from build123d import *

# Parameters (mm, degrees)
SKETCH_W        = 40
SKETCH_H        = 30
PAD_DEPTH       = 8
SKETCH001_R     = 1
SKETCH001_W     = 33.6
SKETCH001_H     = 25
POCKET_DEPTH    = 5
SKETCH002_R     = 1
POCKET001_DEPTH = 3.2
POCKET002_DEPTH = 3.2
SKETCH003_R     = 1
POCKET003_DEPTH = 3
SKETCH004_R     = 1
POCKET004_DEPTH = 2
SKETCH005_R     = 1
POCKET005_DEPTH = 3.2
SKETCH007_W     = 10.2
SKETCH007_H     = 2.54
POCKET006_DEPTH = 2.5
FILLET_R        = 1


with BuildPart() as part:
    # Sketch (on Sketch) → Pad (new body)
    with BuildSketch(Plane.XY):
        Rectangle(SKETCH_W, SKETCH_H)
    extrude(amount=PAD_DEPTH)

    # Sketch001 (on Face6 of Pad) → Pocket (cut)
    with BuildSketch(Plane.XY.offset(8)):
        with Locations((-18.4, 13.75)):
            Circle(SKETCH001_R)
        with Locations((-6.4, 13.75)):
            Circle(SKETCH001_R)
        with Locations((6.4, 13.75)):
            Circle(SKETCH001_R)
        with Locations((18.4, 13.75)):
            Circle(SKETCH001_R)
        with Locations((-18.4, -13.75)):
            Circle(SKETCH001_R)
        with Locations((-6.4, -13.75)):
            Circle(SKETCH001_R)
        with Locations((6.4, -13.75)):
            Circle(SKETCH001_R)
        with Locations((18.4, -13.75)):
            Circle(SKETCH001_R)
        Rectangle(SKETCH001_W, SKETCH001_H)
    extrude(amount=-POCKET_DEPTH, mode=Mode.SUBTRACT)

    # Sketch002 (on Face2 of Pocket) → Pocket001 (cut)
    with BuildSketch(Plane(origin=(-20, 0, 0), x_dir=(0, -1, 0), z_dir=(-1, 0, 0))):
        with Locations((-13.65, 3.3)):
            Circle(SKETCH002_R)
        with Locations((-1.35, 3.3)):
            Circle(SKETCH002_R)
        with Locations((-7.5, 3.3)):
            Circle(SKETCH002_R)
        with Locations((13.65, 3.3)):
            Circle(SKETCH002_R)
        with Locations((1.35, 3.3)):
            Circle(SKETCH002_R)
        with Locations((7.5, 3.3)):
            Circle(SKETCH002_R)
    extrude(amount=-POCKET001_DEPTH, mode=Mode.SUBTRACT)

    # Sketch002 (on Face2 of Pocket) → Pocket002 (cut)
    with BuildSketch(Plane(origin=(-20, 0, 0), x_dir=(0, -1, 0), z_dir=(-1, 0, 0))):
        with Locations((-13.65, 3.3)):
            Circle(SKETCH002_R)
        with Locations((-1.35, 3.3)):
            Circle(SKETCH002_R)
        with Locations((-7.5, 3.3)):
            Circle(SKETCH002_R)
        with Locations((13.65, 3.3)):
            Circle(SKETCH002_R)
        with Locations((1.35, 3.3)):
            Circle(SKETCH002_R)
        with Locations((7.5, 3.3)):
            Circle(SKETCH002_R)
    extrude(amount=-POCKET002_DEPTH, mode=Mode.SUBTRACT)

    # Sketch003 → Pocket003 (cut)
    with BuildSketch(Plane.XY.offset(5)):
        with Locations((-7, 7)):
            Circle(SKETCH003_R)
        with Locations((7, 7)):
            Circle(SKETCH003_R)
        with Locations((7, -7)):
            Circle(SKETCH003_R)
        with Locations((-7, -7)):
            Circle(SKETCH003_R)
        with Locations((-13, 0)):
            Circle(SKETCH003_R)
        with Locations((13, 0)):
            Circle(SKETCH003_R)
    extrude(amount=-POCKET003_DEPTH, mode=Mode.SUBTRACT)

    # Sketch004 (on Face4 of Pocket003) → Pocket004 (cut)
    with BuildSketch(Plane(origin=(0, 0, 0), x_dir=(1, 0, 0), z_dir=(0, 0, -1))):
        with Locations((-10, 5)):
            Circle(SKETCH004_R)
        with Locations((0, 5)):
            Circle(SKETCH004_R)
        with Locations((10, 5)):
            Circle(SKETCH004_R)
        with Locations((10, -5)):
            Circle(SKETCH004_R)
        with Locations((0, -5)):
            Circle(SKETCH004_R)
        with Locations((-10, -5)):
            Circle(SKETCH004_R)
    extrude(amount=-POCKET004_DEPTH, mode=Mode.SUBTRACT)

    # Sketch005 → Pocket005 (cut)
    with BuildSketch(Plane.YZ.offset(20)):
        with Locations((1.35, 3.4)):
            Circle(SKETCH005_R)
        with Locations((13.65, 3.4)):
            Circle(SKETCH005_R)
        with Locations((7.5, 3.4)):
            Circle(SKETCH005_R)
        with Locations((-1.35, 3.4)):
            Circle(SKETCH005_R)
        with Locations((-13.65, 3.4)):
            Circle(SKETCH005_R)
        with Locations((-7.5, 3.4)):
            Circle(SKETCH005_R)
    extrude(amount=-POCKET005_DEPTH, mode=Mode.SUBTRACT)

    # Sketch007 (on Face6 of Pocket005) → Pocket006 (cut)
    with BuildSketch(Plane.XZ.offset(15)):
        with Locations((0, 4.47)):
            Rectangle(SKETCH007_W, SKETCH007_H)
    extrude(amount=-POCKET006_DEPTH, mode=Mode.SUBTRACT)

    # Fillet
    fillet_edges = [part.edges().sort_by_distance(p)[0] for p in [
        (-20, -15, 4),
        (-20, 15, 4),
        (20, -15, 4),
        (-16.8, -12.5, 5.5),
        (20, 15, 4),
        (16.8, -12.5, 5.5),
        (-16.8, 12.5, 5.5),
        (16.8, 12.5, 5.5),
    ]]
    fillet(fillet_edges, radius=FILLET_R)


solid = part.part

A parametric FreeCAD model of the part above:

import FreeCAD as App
import Part
import Sketcher
from FreeCAD import Vector
Q = App.Units.Quantity


def edges_at(feature, points):
    """Names of the edges that pass closest to the given points."""
    edges = feature.Shape.Edges
    near = lambda p: min(range(len(edges)), key=lambda i: edges[i].distToShape(Part.Vertex(*p))[0])
    return sorted({f"Edge{near(p) + 1}" for p in points})

doc = App.newDocument("Part")
body = doc.addObject("PartDesign::Body", "Body")

# Sketch on XY plane
sketch1 = doc.addObject("Sketcher::SketchObject", "Sketch")
body.addObject(sketch1)
sketch1.AttachmentSupport = (doc.XY_Plane, [""])
sketch1.MapMode = "FlatFace"
sketch1.addGeometry([
    Part.LineSegment(Vector(-20, 15, 0), Vector(-20, -15, 0)),
    Part.LineSegment(Vector(-20, -15, 0), Vector(20, -15, 0)),
    Part.LineSegment(Vector(20, -15, 0), Vector(20, 15, 0)),
    Part.LineSegment(Vector(20, 15, 0), Vector(-20, 15, 0)),
], False)
sketch1.addConstraint([
    Sketcher.Constraint("Coincident", 0, 2, 1, 1),
    Sketcher.Constraint("Coincident", 1, 2, 2, 1),
    Sketcher.Constraint("Coincident", 2, 2, 3, 1),
    Sketcher.Constraint("Coincident", 3, 2, 0, 1),
    Sketcher.Constraint("Vertical", 0),
    Sketcher.Constraint("Horizontal", 1),
    Sketcher.Constraint("Vertical", 2),
    Sketcher.Constraint("Horizontal", 3),
    Sketcher.Constraint("Symmetric", 0, 2, 2, 2, -1, 1),
    Sketcher.Constraint("DistanceX", 1, 1, 1, 2, Q("40 mm")),
    Sketcher.Constraint("DistanceY", 0, 2, 0, 1, Q("30 mm")),
])
pad1 = doc.addObject("PartDesign::Pad", "Pad")
body.addObject(pad1)
pad1.Profile = sketch1
pad1.Length = 8

# Sketch on XY plane
sketch2 = doc.addObject("Sketcher::SketchObject", "Sketch001")
body.addObject(sketch2)
sketch2.AttachmentSupport = (doc.XY_Plane, [""])
sketch2.MapMode = "FlatFace"
sketch2.AttachmentOffset = App.Placement(Vector(0, 0, 8), App.Rotation())
sketch2.addGeometry([
    Part.Circle(Vector(-18.4, 13.75, 0), Vector(0, 0, 1), 1),  # 0
    Part.Circle(Vector(-6.4, 13.75, 0), Vector(0, 0, 1), 1),  # 1
    Part.Circle(Vector(6.4, 13.75, 0), Vector(0, 0, 1), 1),  # 2
    Part.Circle(Vector(18.4, 13.75, 0), Vector(0, 0, 1), 1),  # 3
    Part.Circle(Vector(-18.4, -13.75, 0), Vector(0, 0, 1), 1),  # 4
    Part.Circle(Vector(-6.4, -13.75, 0), Vector(0, 0, 1), 1),  # 5
    Part.Circle(Vector(6.4, -13.75, 0), Vector(0, 0, 1), 1),  # 6
    Part.Circle(Vector(18.4, -13.75, 0), Vector(0, 0, 1), 1),  # 7
    Part.LineSegment(Vector(-16.8, 12.5, 0), Vector(-16.8, -12.5, 0)),  # 8
    Part.LineSegment(Vector(-16.8, -12.5, 0), Vector(16.8, -12.5, 0)),  # 9
    Part.LineSegment(Vector(16.8, -12.5, 0), Vector(16.8, 12.5, 0)),  # 10
    Part.LineSegment(Vector(16.8, 12.5, 0), Vector(-16.8, 12.5, 0)),  # 11
], False)
sketch2.addConstraint([
    Sketcher.Constraint("Coincident", 8, 2, 9, 1),
    Sketcher.Constraint("Coincident", 9, 2, 10, 1),
    Sketcher.Constraint("Coincident", 10, 2, 11, 1),
    Sketcher.Constraint("Coincident", 11, 2, 8, 1),
    Sketcher.Constraint("Vertical", 8),
    Sketcher.Constraint("Horizontal", 9),
    Sketcher.Constraint("Vertical", 10),
    Sketcher.Constraint("Horizontal", 11),
    Sketcher.Constraint("Equal", 0, 1),
    Sketcher.Constraint("Equal", 1, 2),
    Sketcher.Constraint("Equal", 2, 3),
    Sketcher.Constraint("Equal", 3, 4),
    Sketcher.Constraint("Equal", 4, 5),
    Sketcher.Constraint("Equal", 5, 6),
    Sketcher.Constraint("Equal", 6, 7),
    Sketcher.Constraint("Symmetric", 3, 3, 4, 3, -1, 1),
    Sketcher.Constraint("Symmetric", 2, 3, 5, 3, -1, 1),
    Sketcher.Constraint("Symmetric", 1, 3, 6, 3, -1, 1),
    Sketcher.Constraint("Symmetric", 0, 3, 7, 3, -1, 1),
    Sketcher.Constraint("Symmetric", 8, 2, 10, 2, -1, 1),
    Sketcher.Constraint("Symmetric", 1, 3, 2, 3, -2),
    Sketcher.Constraint("Symmetric", 0, 3, 3, 3, -2),
    Sketcher.Constraint("Horizontal", 0, 3, 1, 3),
    Sketcher.Constraint("Diameter", 0, Q("2 mm")),
    Sketcher.Constraint("DistanceY", 8, 2, 8, 1, Q("25 mm")),
    Sketcher.Constraint("DistanceX", 9, 1, 9, 2, Q("33.6 mm")),
    Sketcher.Constraint("DistanceX", 0, 3, 1, 3, Q("12 mm")),
    Sketcher.Constraint("DistanceX", 0, 3, -1, 1, Q("18.4 mm")),
    Sketcher.Constraint("DistanceY", 4, 3, 0, 3, Q("27.5 mm")),
])
pocket1 = doc.addObject("PartDesign::Pocket", "Pocket")
body.addObject(pocket1)
pocket1.Profile = sketch2
pocket1.Length = 5

# Sketch on YZ plane
sketch3 = doc.addObject("Sketcher::SketchObject", "Sketch002")
body.addObject(sketch3)
sketch3.AttachmentSupport = (doc.YZ_Plane, [""])
sketch3.MapMode = "FlatFace"
sketch3.AttachmentOffset = App.Placement(Vector(0, 0, -20), App.Rotation())
sketch3.addGeometry([
    Part.Circle(Vector(13.65, 3.3, 0), Vector(0, 0, 1), 1),  # 0
    Part.Circle(Vector(1.35, 3.3, 0), Vector(0, 0, 1), 1),  # 1
    Part.Circle(Vector(7.5, 3.3, 0), Vector(0, 0, 1), 1),  # 2
    Part.Circle(Vector(-13.65, 3.3, 0), Vector(0, 0, 1), 1),  # 3
    Part.Circle(Vector(-1.35, 3.3, 0), Vector(0, 0, 1), 1),  # 4
    Part.Circle(Vector(-7.5, 3.3, 0), Vector(0, 0, 1), 1),  # 5
], False)
sketch3.addConstraint([
    Sketcher.Constraint("Equal", 0, 1),
    Sketcher.Constraint("Equal", 1, 2),
    Sketcher.Constraint("Equal", 2, 3),
    Sketcher.Constraint("Equal", 3, 4),
    Sketcher.Constraint("Equal", 4, 5),
    Sketcher.Constraint("Symmetric", 0, 3, 3, 3, -2),
    Sketcher.Constraint("Symmetric", 1, 3, 4, 3, -2),
    Sketcher.Constraint("Symmetric", 2, 3, 5, 3, -2),
    Sketcher.Constraint("Horizontal", 0, 3, 1, 3),
    Sketcher.Constraint("Horizontal", 1, 3, 2, 3),
    Sketcher.Constraint("Diameter", 0, Q("2 mm")),
    Sketcher.Constraint("DistanceX", 3, 3, 1, 3, Q("15 mm")),
    Sketcher.Constraint("DistanceX", 5, 3, 2, 3, Q("15 mm")),
    Sketcher.Constraint("DistanceY", -1, 1, 0, 3, Q("3.3 mm")),
    Sketcher.Constraint("DistanceX", 1, 3, 0, 3, Q("12.3 mm")),
])
pocket2 = doc.addObject("PartDesign::Pocket", "Pocket001")
body.addObject(pocket2)
pocket2.Profile = sketch3
pocket2.Length = 3.2
pocket2.Reversed = True

# Sketch on YZ plane
sketch4 = doc.addObject("Sketcher::SketchObject", "Sketch003")
body.addObject(sketch4)
sketch4.AttachmentSupport = (doc.YZ_Plane, [""])
sketch4.MapMode = "FlatFace"
sketch4.AttachmentOffset = App.Placement(Vector(0, 0, -20), App.Rotation())
sketch4.addGeometry([
    Part.Circle(Vector(13.65, 3.3, 0), Vector(0, 0, 1), 1),  # 0
    Part.Circle(Vector(1.35, 3.3, 0), Vector(0, 0, 1), 1),  # 1
    Part.Circle(Vector(7.5, 3.3, 0), Vector(0, 0, 1), 1),  # 2
    Part.Circle(Vector(-13.65, 3.3, 0), Vector(0, 0, 1), 1),  # 3
    Part.Circle(Vector(-1.35, 3.3, 0), Vector(0, 0, 1), 1),  # 4
    Part.Circle(Vector(-7.5, 3.3, 0), Vector(0, 0, 1), 1),  # 5
], False)
sketch4.addConstraint([
    Sketcher.Constraint("Equal", 0, 1),
    Sketcher.Constraint("Equal", 1, 2),
    Sketcher.Constraint("Equal", 2, 3),
    Sketcher.Constraint("Equal", 3, 4),
    Sketcher.Constraint("Equal", 4, 5),
    Sketcher.Constraint("Symmetric", 0, 3, 3, 3, -2),
    Sketcher.Constraint("Symmetric", 1, 3, 4, 3, -2),
    Sketcher.Constraint("Symmetric", 2, 3, 5, 3, -2),
    Sketcher.Constraint("Horizontal", 0, 3, 1, 3),
    Sketcher.Constraint("Horizontal", 1, 3, 2, 3),
    Sketcher.Constraint("Diameter", 0, Q("2 mm")),
    Sketcher.Constraint("DistanceX", 3, 3, 1, 3, Q("15 mm")),
    Sketcher.Constraint("DistanceX", 5, 3, 2, 3, Q("15 mm")),
    Sketcher.Constraint("DistanceY", -1, 1, 0, 3, Q("3.3 mm")),
    Sketcher.Constraint("DistanceX", 1, 3, 0, 3, Q("12.3 mm")),
])
pocket3 = doc.addObject("PartDesign::Pocket", "Pocket002")
body.addObject(pocket3)
pocket3.Profile = sketch4
pocket3.Length = 3.2
pocket3.Reversed = True

# Sketch on XY plane
sketch5 = doc.addObject("Sketcher::SketchObject", "Sketch004")
body.addObject(sketch5)
sketch5.AttachmentSupport = (doc.XY_Plane, [""])
sketch5.MapMode = "FlatFace"
sketch5.AttachmentOffset = App.Placement(Vector(0, 0, 5), App.Rotation())
sketch5.addGeometry([
    Part.Circle(Vector(-7, 7, 0), Vector(0, 0, 1), 1),  # 0
    Part.Circle(Vector(7, 7, 0), Vector(0, 0, 1), 1),  # 1
    Part.Circle(Vector(7, -7, 0), Vector(0, 0, 1), 1),  # 2
    Part.Circle(Vector(-7, -7, 0), Vector(0, 0, 1), 1),  # 3
    Part.Circle(Vector(-13, 0, 0), Vector(0, 0, 1), 1),  # 4
    Part.Circle(Vector(13, 0, 0), Vector(0, 0, 1), 1),  # 5
], False)
sketch5.addConstraint([
    Sketcher.Constraint("Equal", 0, 1),
    Sketcher.Constraint("Equal", 1, 2),
    Sketcher.Constraint("Equal", 2, 3),
    Sketcher.Constraint("Equal", 3, 4),
    Sketcher.Constraint("Equal", 4, 5),
    Sketcher.Constraint("Symmetric", 0, 3, 2, 3, -1, 1),
    Sketcher.Constraint("Symmetric", 1, 3, 3, 3, -1, 1),
    Sketcher.Constraint("Symmetric", 4, 3, 5, 3, -1, 1),
    Sketcher.Constraint("Symmetric", 0, 3, 1, 3, -2),
    Sketcher.Constraint("PointOnObject", 4, 3, -1),
    Sketcher.Constraint("Diameter", 0, Q("2 mm")),
    Sketcher.Constraint("DistanceX", 0, 3, -1, 1, Q("7 mm")),
    Sketcher.Constraint("DistanceY", -1, 1, 0, 3, Q("7 mm")),
    Sketcher.Constraint("DistanceX", 4, 3, -1, 1, Q("13 mm")),
])
pocket4 = doc.addObject("PartDesign::Pocket", "Pocket003")
body.addObject(pocket4)
pocket4.Profile = sketch5
pocket4.Length = 3

# Sketch on XY plane
sketch6 = doc.addObject("Sketcher::SketchObject", "Sketch005")
body.addObject(sketch6)
sketch6.AttachmentSupport = (doc.XY_Plane, [""])
sketch6.MapMode = "FlatFace"
sketch6.addGeometry([
    Part.Circle(Vector(-10, -5, 0), Vector(0, 0, 1), 1),  # 0
    Part.Circle(Vector(0, -5, 0), Vector(0, 0, 1), 1),  # 1
    Part.Circle(Vector(10, -5, 0), Vector(0, 0, 1), 1),  # 2
    Part.Circle(Vector(10, 5, 0), Vector(0, 0, 1), 1),  # 3
    Part.Circle(Vector(0, 5, 0), Vector(0, 0, 1), 1),  # 4
    Part.Circle(Vector(-10, 5, 0), Vector(0, 0, 1), 1),  # 5
], False)
sketch6.addConstraint([
    Sketcher.Constraint("Equal", 0, 1),
    Sketcher.Constraint("Equal", 1, 2),
    Sketcher.Constraint("Equal", 2, 3),
    Sketcher.Constraint("Equal", 3, 4),
    Sketcher.Constraint("Equal", 4, 5),
    Sketcher.Constraint("Symmetric", 0, 3, 3, 3, -1, 1),
    Sketcher.Constraint("Symmetric", 1, 3, 4, 3, -1, 1),
    Sketcher.Constraint("Symmetric", 2, 3, 5, 3, -1, 1),
    Sketcher.Constraint("Symmetric", 0, 3, 2, 3, -2),
    Sketcher.Constraint("PointOnObject", 1, 3, -2),
    Sketcher.Constraint("Horizontal", 0, 3, 1, 3),
    Sketcher.Constraint("Diameter", 0, Q("2 mm")),
    Sketcher.Constraint("DistanceX", 0, 3, -1, 1, Q("10 mm")),
    Sketcher.Constraint("DistanceY", 0, 3, -1, 1, Q("5 mm")),
])
pocket5 = doc.addObject("PartDesign::Pocket", "Pocket004")
body.addObject(pocket5)
pocket5.Profile = sketch6
pocket5.Length = 2
pocket5.Reversed = True

# Sketch on YZ plane
sketch7 = doc.addObject("Sketcher::SketchObject", "Sketch006")
body.addObject(sketch7)
sketch7.AttachmentSupport = (doc.YZ_Plane, [""])
sketch7.MapMode = "FlatFace"
sketch7.AttachmentOffset = App.Placement(Vector(0, 0, 20), App.Rotation())
sketch7.addGeometry([
    Part.Circle(Vector(1.35, 3.4, 0), Vector(0, 0, 1), 1),  # 0
    Part.Circle(Vector(13.65, 3.4, 0), Vector(0, 0, 1), 1),  # 1
    Part.Circle(Vector(7.5, 3.4, 0), Vector(0, 0, 1), 1),  # 2
    Part.Circle(Vector(-1.35, 3.4, 0), Vector(0, 0, 1), 1),  # 3
    Part.Circle(Vector(-13.65, 3.4, 0), Vector(0, 0, 1), 1),  # 4
    Part.Circle(Vector(-7.5, 3.4, 0), Vector(0, 0, 1), 1),  # 5
], False)
sketch7.addConstraint([
    Sketcher.Constraint("Equal", 0, 1),
    Sketcher.Constraint("Equal", 1, 2),
    Sketcher.Constraint("Equal", 2, 3),
    Sketcher.Constraint("Equal", 3, 4),
    Sketcher.Constraint("Equal", 4, 5),
    Sketcher.Constraint("Symmetric", 0, 3, 3, 3, -2),
    Sketcher.Constraint("Symmetric", 1, 3, 4, 3, -2),
    Sketcher.Constraint("Symmetric", 2, 3, 5, 3, -2),
    Sketcher.Constraint("Horizontal", 0, 3, 1, 3),
    Sketcher.Constraint("Horizontal", 1, 3, 2, 3),
    Sketcher.Constraint("Diameter", 0, Q("2 mm")),
    Sketcher.Constraint("DistanceX", 3, 3, 1, 3, Q("15 mm")),
    Sketcher.Constraint("DistanceX", 5, 3, 2, 3, Q("15 mm")),
    Sketcher.Constraint("DistanceY", -1, 1, 0, 3, Q("3.4 mm")),
    Sketcher.Constraint("DistanceX", 0, 3, 1, 3, Q("12.3 mm")),
])
pocket6 = doc.addObject("PartDesign::Pocket", "Pocket005")
body.addObject(pocket6)
pocket6.Profile = sketch7
pocket6.Length = 3.2

# Sketch on XZ plane
sketch8 = doc.addObject("Sketcher::SketchObject", "Sketch007")
body.addObject(sketch8)
sketch8.AttachmentSupport = (doc.XZ_Plane, [""])
sketch8.MapMode = "FlatFace"
sketch8.AttachmentOffset = App.Placement(Vector(0, 0, 15), App.Rotation())
sketch8.addGeometry([
    Part.LineSegment(Vector(-5.1, 5.74, 0), Vector(-5.1, 3.2, 0)),
    Part.LineSegment(Vector(-5.1, 3.2, 0), Vector(5.1, 3.2, 0)),
    Part.LineSegment(Vector(5.1, 3.2, 0), Vector(5.1, 5.74, 0)),
    Part.LineSegment(Vector(5.1, 5.74, 0), Vector(-5.1, 5.74, 0)),
], False)
sketch8.addConstraint([
    Sketcher.Constraint("Coincident", 0, 2, 1, 1),
    Sketcher.Constraint("Coincident", 1, 2, 2, 1),
    Sketcher.Constraint("Coincident", 2, 2, 3, 1),
    Sketcher.Constraint("Coincident", 3, 2, 0, 1),
    Sketcher.Constraint("Vertical", 0),
    Sketcher.Constraint("Horizontal", 1),
    Sketcher.Constraint("Vertical", 2),
    Sketcher.Constraint("Horizontal", 3),
    Sketcher.Constraint("DistanceX", 1, 1, 1, 2, Q("10.2 mm")),
    Sketcher.Constraint("DistanceY", 0, 2, 0, 1, Q("2.54 mm")),
    Sketcher.Constraint("DistanceX", 0, 2, -1, 1, Q("5.1 mm")),
    Sketcher.Constraint("DistanceY", -1, 1, 0, 2, Q("3.2 mm")),
])
pocket7 = doc.addObject("PartDesign::Pocket", "Pocket006")
body.addObject(pocket7)
pocket7.Profile = sketch8
pocket7.Length = 2.5
doc.recompute()

fillet = doc.addObject("PartDesign::Fillet", "Fillet")
body.addObject(fillet)
fillet.Base = (pocket7, edges_at(pocket7, [
    (-20, -15, 4),
    (-20, 15, 4),
    (20, -15, 4),
    (-16.8, -12.5, 5.5),
    (20, 15, 4),
    (16.8, -12.5, 5.5),
    (-16.8, 12.5, 5.5),
    (16.8, 12.5, 5.5),
]))
fillet.Radius = 1

doc.recompute()
